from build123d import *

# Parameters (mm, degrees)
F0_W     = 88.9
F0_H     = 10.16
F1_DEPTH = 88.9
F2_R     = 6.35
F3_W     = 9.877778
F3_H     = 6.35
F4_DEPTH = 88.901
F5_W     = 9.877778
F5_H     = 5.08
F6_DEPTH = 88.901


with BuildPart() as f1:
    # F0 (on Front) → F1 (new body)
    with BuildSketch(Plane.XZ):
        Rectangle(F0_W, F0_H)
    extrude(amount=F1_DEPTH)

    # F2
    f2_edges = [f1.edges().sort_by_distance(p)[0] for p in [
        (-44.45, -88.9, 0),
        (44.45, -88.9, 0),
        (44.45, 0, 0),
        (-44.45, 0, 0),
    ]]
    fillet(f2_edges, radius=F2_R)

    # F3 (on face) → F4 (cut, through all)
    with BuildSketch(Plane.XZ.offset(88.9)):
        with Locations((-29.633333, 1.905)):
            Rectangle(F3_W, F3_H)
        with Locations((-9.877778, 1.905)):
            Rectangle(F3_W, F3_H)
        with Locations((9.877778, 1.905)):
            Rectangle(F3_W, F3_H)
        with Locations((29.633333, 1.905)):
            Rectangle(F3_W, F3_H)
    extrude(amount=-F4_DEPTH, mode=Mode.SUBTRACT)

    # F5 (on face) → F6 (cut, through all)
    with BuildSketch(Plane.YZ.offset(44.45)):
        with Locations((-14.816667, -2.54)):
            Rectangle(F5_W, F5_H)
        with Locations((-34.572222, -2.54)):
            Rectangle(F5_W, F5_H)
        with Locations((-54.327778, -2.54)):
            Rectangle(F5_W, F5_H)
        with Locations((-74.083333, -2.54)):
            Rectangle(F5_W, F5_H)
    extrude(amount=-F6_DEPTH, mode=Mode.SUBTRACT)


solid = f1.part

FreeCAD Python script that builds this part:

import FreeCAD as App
import Part
import Sketcher
from FreeCAD import Vector
Q = App.Units.Quantity


def edges_at(feature, points):
    """Names of the edges that pass closest to the given points."""
    edges = feature.Shape.Edges
    near = lambda p: min(range(len(edges)), key=lambda i: edges[i].distToShape(Part.Vertex(*p))[0])
    return sorted({f"Edge{near(p) + 1}" for p in points})


def add_polygon(sketch, points):
    """Adds a closed chain of lines whose ends are joined by coincident constraints."""
    first, n = sketch.GeometryCount, len(points)
    for a, b in zip(points, points[1:] + points[:1]):
        sketch.addGeometry(Part.LineSegment(App.Vector(*a, 0), App.Vector(*b, 0)), False)
    for i in range(n):
        sketch.addConstraint(Sketcher.Constraint("Coincident", first + i, 2, first + (i + 1) % n, 1))

doc = App.newDocument("Part")
body = doc.addObject("PartDesign::Body", "Body")

# Sketch on XZ plane
sketch1 = body.newObject("Sketcher::SketchObject", "Sketch")
sketch1.AttachmentSupport = (doc.getObject("XZ_Plane"), [""])
sketch1.MapMode = "FlatFace"
add_polygon(sketch1, [(-44.45, 5.08), (-44.45, -5.08), (44.45, -5.08), (44.45, 5.08)])  # lines 0-3
sketch1.addConstraint([
    Sketcher.Constraint("Vertical", 0),
    Sketcher.Constraint("Horizontal", 1),
    Sketcher.Constraint("Vertical", 2),
    Sketcher.Constraint("Horizontal", 3),
    Sketcher.Constraint("Symmetric", 0, 2, 2, 2, -1, 1),
    Sketcher.Constraint("DistanceX", 1, 1, 1, 2, Q("3.5 in")),
    Sketcher.Constraint("DistanceY", 0, 2, 0, 1, Q("0.4 in")),
])
pad1 = body.newObject("PartDesign::Pad", "Pad")
pad1.Profile = sketch1
pad1.Length = Q("3.5 in")
doc.recompute()

fillet = body.newObject("PartDesign::Fillet", "Fillet")
fillet.Base = (pad1, edges_at(pad1, [
    (-44.45, -88.9, 0),
    (44.45, -88.9, 0),
    (44.45, 0, 0),
    (-44.45, 0, 0),
]))
fillet.Radius = Q("0.25 in")

# Sketch on XZ plane
sketch2 = body.newObject("Sketcher::SketchObject", "Sketch001")
sketch2.AttachmentSupport = (doc.getObject("XZ_Plane"), [""])
sketch2.MapMode = "FlatFace"
sketch2.AttachmentOffset = App.Placement(Vector(0, 0, 3.5 * 25.4), App.Rotation())
add_polygon(sketch2, [(-34.572222, 5.08), (-34.572222, -1.27), (-24.694444, -1.27), (-24.694444, 5.08)])  # lines 0-3
add_polygon(sketch2, [(-14.816667, 5.08), (-14.816667, -1.27), (-4.938889, -1.27), (-4.938889, 5.08)])  # lines 4-7
add_polygon(sketch2, [(4.938889, 5.08), (4.938889, -1.27), (14.816667, -1.27), (14.816667, 5.08)])  # lines 8-11
add_polygon(sketch2, [(24.694444, 5.08), (24.694444, -1.27), (34.572222, -1.27), (34.572222, 5.08)])  # lines 12-15
sketch2.addConstraint([
    Sketcher.Constraint("Vertical", 0),
    Sketcher.Constraint("Horizontal", 1),
    Sketcher.Constraint("Vertical", 2),
    Sketcher.Constraint("Horizontal", 3),
    Sketcher.Constraint("Vertical", 4),
    Sketcher.Constraint("Horizontal", 5),
    Sketcher.Constraint("Vertical", 6),
    Sketcher.Constraint("Horizontal", 7),
    Sketcher.Constraint("Vertical", 8),
    Sketcher.Constraint("Horizontal", 9),
    Sketcher.Constraint("Vertical", 10),
    Sketcher.Constraint("Horizontal", 11),
    Sketcher.Constraint("Vertical", 12),
    Sketcher.Constraint("Horizontal", 13),
    Sketcher.Constraint("Vertical", 14),
    Sketcher.Constraint("Horizontal", 15),
    Sketcher.Constraint("Symmetric", 5, 2, 8, 2, -2),
    Sketcher.Constraint("Symmetric", 7, 2, 10, 2, -2),
    Sketcher.Constraint("Symmetric", 1, 2, 12, 2, -2),
    Sketcher.Constraint("Symmetric", 3, 2, 14, 2, -2),
    Sketcher.Constraint("Horizontal", 1, 2, 4, 2),
    Sketcher.Constraint("Horizontal", 3, 2, 6, 2),
    Sketcher.Constraint("Equal", 3, 5),
    Sketcher.Constraint("DistanceY", 0, 2, 0, 1, Q("0.25 in")),
    Sketcher.Constraint("DistanceY", -1, 1, 2, 2, Q("0.2 in")),
    Sketcher.Constraint("DistanceX", 5, 1, 5, 2, 9.877778),
    Sketcher.Constraint("DistanceX", 0, 2, -1, 1, 34.572222),
    Sketcher.Constraint("DistanceX", 5, 2, -1, 1, 4.938889),
])
pocket1 = body.newObject("PartDesign::Pocket", "Pocket")
pocket1.Profile = sketch2
pocket1.Type = "ThroughAll"

# Sketch on YZ plane
sketch3 = body.newObject("Sketcher::SketchObject", "Sketch002")
sketch3.AttachmentSupport = (doc.getObject("YZ_Plane"), [""])
sketch3.MapMode = "FlatFace"
sketch3.AttachmentOffset = App.Placement(Vector(0, 0, 1.75 * 25.4), App.Rotation())
add_polygon(sketch3, [(-19.755556, 0), (-19.755556, -5.08), (-9.877778, -5.08), (-9.877778, 0)])  # lines 0-3
add_polygon(sketch3, [(-39.511111, 0), (-39.511111, -5.08), (-29.633333, -5.08), (-29.633333, 0)])  # lines 4-7
add_polygon(sketch3, [(-59.266667, 0), (-59.266667, -5.08), (-49.388889, -5.08), (-49.388889, 0)])  # lines 8-11
add_polygon(sketch3, [(-79.022222, 0), (-79.022222, -5.08), (-69.144444, -5.08), (-69.144444, 0)])  # lines 12-15
sketch3.addConstraint([
    Sketcher.Constraint("Vertical", 0),
    Sketcher.Constraint("Horizontal", 1),
    Sketcher.Constraint("Vertical", 2),
    Sketcher.Constraint("Horizontal", 3),
    Sketcher.Constraint("Vertical", 4),
    Sketcher.Constraint("Horizontal", 5),
    Sketcher.Constraint("Vertical", 6),
    Sketcher.Constraint("Horizontal", 7),
    Sketcher.Constraint("Vertical", 8),
    Sketcher.Constraint("Horizontal", 9),
    Sketcher.Constraint("Vertical", 10),
    Sketcher.Constraint("Horizontal", 11),
    Sketcher.Constraint("Vertical", 12),
    Sketcher.Constraint("Horizontal", 13),
    Sketcher.Constraint("Vertical", 14),
    Sketcher.Constraint("Horizontal", 15),
    Sketcher.Constraint("PointOnObject", 2, 2, -1),
    Sketcher.Constraint("PointOnObject", 6, 2, -1),
    Sketcher.Constraint("PointOnObject", 10, 2, -1),
    Sketcher.Constraint("PointOnObject", 14, 2, -1),
    Sketcher.Constraint("Horizontal", 1, 2, 4, 2),
    Sketcher.Constraint("Horizontal", 5, 2, 8, 2),
    Sketcher.Constraint("Horizontal", 9, 2, 12, 2),
    Sketcher.Constraint("Equal", 3, 5),
    Sketcher.Constraint("Equal", 7, 9),
    Sketcher.Constraint("Equal", 11, 13),
    Sketcher.Constraint("DistanceY", 0, 2, 0, 1, Q("0.2 in")),
    Sketcher.Constraint("DistanceX", 13, 1, 13, 2, 9.877778),
    Sketcher.Constraint("DistanceX", 4, 2, -1, 1, 39.511111),
    Sketcher.Constraint("DistanceX", 9, 2, -1, 1, 49.388889),
    Sketcher.Constraint("DistanceX", 12, 2, -1, 1, 79.022222),
    Sketcher.Constraint("DistanceX", 8, 2, 0, 2, 39.511111),
])
pocket2 = body.newObject("PartDesign::Pocket", "Pocket001")
pocket2.Profile = sketch3
pocket2.Type = "ThroughAll"

doc.recompute()
